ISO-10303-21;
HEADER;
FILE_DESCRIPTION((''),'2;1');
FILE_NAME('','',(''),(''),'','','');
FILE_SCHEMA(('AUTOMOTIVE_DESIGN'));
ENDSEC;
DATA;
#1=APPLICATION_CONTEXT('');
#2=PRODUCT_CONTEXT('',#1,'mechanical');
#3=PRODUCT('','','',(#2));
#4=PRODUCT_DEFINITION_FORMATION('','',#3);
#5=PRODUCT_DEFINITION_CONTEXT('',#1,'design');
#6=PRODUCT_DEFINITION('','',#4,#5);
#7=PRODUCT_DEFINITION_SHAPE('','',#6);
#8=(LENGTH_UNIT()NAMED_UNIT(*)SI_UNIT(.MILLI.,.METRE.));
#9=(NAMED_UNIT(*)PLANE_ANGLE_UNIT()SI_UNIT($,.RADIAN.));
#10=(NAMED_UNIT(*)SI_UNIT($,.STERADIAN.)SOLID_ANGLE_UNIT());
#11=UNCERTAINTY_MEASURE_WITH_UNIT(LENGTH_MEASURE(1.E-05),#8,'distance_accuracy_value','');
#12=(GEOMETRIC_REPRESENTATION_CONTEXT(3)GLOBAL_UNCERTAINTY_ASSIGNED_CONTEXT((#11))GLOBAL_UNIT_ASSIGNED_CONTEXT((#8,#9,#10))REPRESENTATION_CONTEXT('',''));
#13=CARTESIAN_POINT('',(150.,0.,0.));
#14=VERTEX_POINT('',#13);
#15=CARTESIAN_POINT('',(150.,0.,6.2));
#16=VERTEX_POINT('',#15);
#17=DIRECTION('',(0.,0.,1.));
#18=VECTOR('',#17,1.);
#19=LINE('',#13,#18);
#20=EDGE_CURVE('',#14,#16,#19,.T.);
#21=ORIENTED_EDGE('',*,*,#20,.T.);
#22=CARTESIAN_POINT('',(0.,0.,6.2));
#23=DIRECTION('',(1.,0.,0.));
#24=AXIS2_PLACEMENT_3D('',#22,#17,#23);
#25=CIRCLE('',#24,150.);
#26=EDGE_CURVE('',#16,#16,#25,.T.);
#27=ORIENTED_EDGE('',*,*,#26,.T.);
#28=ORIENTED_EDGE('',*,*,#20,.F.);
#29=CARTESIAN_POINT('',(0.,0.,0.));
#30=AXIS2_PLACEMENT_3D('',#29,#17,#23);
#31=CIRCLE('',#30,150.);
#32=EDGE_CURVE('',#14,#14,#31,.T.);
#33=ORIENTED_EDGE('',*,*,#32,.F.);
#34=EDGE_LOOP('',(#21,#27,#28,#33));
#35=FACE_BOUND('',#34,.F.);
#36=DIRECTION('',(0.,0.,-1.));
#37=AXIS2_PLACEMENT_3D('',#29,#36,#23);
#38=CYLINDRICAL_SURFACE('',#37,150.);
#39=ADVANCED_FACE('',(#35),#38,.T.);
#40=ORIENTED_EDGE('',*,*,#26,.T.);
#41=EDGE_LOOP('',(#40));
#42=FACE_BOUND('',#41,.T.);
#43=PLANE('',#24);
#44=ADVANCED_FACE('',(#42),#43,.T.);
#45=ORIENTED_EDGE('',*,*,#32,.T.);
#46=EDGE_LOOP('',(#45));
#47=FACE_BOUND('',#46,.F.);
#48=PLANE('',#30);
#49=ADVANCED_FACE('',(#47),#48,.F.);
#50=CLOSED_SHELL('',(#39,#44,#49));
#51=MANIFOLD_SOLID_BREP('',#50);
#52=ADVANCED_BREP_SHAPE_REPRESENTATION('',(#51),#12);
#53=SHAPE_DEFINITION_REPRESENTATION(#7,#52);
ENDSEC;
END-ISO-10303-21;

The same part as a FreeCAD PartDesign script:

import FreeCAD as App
import Part
import Sketcher
Q = App.Units.Quantity

doc = App.newDocument("Part")
body = doc.addObject("PartDesign::Body", "Body")

# Sketch on XY plane
sketch1 = doc.addObject("Sketcher::SketchObject", "Sketch")
body.addObject(sketch1)
sketch1.AttachmentSupport = (doc.XY_Plane, [""])
sketch1.MapMode = "FlatFace"
sketch1.addGeometry(Part.Circle(App.Vector(0, 0, 0), App.Vector(0, 0, 1), 150), False)
sketch1.addConstraint([
    Sketcher.Constraint("Coincident", 0, 3, -1, 1),
    Sketcher.Constraint("Diameter", 0, Q("300 mm")),
])
pad1 = doc.addObject("PartDesign::Pad", "Pad")
body.addObject(pad1)
pad1.Profile = sketch1
pad1.Length = 6.2

doc.recompute()
